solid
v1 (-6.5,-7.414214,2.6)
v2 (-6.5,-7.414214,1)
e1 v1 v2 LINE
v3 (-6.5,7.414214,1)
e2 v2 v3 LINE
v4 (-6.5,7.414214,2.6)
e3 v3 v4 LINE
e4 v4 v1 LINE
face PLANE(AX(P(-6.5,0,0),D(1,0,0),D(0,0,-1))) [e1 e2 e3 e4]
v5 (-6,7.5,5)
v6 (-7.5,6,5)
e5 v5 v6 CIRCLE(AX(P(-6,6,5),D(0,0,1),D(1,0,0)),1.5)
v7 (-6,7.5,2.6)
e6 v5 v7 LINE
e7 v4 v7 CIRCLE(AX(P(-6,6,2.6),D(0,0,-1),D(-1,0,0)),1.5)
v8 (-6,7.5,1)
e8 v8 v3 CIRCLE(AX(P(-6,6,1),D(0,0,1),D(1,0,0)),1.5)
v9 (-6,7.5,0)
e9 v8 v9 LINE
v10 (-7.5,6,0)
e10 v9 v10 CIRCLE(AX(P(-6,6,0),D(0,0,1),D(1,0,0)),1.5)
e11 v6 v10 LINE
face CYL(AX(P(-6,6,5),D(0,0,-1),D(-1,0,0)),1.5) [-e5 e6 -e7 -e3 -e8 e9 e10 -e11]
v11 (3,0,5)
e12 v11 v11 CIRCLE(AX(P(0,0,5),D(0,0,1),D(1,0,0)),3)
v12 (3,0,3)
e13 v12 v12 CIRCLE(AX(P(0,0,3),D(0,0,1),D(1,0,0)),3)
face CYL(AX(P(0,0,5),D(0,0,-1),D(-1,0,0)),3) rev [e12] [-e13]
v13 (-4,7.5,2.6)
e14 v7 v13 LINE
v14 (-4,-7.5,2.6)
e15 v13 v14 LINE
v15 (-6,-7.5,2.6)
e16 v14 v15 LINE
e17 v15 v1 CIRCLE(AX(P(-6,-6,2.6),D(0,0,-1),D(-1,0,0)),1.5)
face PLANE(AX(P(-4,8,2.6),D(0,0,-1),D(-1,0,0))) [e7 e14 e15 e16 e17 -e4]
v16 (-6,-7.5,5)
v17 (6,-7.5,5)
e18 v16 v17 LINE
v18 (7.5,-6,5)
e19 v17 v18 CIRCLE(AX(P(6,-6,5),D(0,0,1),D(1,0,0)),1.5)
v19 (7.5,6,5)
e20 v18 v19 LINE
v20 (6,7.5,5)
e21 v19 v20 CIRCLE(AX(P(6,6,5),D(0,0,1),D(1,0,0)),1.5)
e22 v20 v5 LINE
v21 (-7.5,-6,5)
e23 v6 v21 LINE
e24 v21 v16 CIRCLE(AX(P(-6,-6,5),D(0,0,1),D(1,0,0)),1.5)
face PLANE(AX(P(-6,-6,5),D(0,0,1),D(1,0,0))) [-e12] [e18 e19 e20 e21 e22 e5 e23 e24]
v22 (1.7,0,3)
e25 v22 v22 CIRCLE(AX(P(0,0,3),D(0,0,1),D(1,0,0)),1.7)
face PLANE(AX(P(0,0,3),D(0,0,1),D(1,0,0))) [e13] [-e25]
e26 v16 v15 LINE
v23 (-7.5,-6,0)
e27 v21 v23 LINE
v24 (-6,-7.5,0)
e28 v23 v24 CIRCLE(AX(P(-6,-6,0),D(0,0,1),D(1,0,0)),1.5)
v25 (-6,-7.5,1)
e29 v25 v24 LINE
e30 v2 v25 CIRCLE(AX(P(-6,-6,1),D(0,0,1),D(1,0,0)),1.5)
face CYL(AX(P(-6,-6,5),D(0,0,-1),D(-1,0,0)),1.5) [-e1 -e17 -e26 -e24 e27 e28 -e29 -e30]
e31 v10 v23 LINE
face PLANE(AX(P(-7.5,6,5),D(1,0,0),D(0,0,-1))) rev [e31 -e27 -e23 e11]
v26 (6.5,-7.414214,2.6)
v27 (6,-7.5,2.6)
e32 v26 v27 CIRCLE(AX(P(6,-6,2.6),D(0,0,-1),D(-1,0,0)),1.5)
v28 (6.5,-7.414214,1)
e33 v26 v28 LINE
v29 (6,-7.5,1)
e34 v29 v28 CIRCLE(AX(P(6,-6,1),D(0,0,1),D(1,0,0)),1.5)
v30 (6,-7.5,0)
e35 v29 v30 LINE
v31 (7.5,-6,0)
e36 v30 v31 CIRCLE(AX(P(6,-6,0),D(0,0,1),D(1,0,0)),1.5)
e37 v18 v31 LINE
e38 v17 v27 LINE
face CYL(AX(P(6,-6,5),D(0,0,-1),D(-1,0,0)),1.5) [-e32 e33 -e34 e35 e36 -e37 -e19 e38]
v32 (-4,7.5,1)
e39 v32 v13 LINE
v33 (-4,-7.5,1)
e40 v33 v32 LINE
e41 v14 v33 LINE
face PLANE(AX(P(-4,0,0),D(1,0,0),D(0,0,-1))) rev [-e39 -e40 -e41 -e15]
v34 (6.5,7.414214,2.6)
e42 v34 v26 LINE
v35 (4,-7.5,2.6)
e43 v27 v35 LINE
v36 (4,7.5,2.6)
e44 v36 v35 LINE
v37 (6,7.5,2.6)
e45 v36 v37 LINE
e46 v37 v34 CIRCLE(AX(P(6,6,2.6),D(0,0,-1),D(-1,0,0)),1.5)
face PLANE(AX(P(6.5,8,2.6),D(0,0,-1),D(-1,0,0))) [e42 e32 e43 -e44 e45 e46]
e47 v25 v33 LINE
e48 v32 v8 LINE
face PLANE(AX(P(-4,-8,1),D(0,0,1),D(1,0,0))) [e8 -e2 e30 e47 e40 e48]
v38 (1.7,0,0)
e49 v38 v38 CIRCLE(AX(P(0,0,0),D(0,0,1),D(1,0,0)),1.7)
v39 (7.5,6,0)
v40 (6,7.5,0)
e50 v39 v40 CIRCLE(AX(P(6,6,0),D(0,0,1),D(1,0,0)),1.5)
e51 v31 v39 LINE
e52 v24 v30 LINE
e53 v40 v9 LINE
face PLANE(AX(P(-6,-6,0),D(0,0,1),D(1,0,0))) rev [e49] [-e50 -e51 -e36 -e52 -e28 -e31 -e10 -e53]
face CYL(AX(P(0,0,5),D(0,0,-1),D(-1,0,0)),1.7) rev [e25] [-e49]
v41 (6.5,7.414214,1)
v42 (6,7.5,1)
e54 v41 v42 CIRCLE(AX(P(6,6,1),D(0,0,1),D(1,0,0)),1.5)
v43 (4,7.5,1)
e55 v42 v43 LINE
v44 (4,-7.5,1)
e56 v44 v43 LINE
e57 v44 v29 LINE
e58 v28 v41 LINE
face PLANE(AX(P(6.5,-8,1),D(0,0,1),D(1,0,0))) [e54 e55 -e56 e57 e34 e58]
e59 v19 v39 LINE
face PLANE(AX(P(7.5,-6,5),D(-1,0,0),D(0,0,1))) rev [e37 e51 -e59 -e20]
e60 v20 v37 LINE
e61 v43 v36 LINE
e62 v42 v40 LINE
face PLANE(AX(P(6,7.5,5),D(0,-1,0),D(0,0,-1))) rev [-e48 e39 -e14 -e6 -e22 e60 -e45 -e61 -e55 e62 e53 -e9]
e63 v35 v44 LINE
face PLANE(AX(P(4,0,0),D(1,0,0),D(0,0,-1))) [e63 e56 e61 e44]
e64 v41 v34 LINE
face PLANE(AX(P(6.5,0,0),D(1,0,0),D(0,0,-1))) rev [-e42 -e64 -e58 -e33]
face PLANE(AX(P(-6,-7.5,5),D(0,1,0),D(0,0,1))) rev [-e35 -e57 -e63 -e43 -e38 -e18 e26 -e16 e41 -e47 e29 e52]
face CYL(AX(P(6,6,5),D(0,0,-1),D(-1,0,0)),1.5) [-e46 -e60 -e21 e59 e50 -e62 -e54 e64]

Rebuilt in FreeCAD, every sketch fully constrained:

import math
import FreeCAD as App
import Part
import Sketcher
from FreeCAD import Vector
Q = App.Units.Quantity


def add_polygon(sketch, points):
    """Adds a closed chain of lines whose ends are joined by coincident constraints."""
    first, n = sketch.GeometryCount, len(points)
    for a, b in zip(points, points[1:] + points[:1]):
        sketch.addGeometry(Part.LineSegment(App.Vector(*a, 0), App.Vector(*b, 0)), False)
    for i in range(n):
        sketch.addConstraint(Sketcher.Constraint("Coincident", first + i, 2, first + (i + 1) % n, 1))

doc = App.newDocument("Part")
body = doc.addObject("PartDesign::Body", "Body")

sketch1 = body.newObject("Sketcher::SketchObject", "Sketch")
sketch1.AttachmentSupport = (doc.getObject("XY_Plane"), [""])
sketch1.MapMode = "FlatFace"
sketch1.addGeometry(Part.LineSegment(Vector(-6, -7.5, 0), Vector(6, -7.5, 0)), False)
sketch1.addGeometry(Part.ArcOfCircle(Part.Circle(Vector(6, -6, 0), Vector(0, 0, 1), 1.5), math.radians(-90), math.radians(0)), False)
sketch1.addGeometry(Part.LineSegment(Vector(7.5, -6, 0), Vector(7.5, 6, 0)), False)
sketch1.addGeometry(Part.ArcOfCircle(Part.Circle(Vector(6, 6, 0), Vector(0, 0, 1), 1.5), math.radians(0), math.radians(90)), False)
sketch1.addGeometry(Part.LineSegment(Vector(6, 7.5, 0), Vector(-6, 7.5, 0)), False)
sketch1.addGeometry(Part.ArcOfCircle(Part.Circle(Vector(-6, 6, 0), Vector(0, 0, 1), 1.5), math.radians(90), math.radians(180)), False)
sketch1.addGeometry(Part.LineSegment(Vector(-7.5, 6, 0), Vector(-7.5, -6, 0)), False)
sketch1.addGeometry(Part.ArcOfCircle(Part.Circle(Vector(-6, -6, 0), Vector(0, 0, 1), 1.5), math.radians(180), math.radians(270)), False)
sketch1.addConstraint(Sketcher.Constraint("Tangent", 0, 2, 1, 1))
sketch1.addConstraint(Sketcher.Constraint("Tangent", 1, 2, 2, 1))
sketch1.addConstraint(Sketcher.Constraint("Tangent", 2, 2, 3, 1))
sketch1.addConstraint(Sketcher.Constraint("Tangent", 3, 2, 4, 1))
sketch1.addConstraint(Sketcher.Constraint("Tangent", 4, 2, 5, 1))
sketch1.addConstraint(Sketcher.Constraint("Tangent", 5, 2, 6, 1))
sketch1.addConstraint(Sketcher.Constraint("Tangent", 6, 2, 7, 1))
sketch1.addConstraint(Sketcher.Constraint("Tangent", 7, 2, 0, 1))
sketch1.addConstraint(Sketcher.Constraint("Horizontal", 0))
sketch1.addConstraint(Sketcher.Constraint("Vertical", 2))
sketch1.addConstraint(Sketcher.Constraint("Horizontal", 4))
sketch1.addConstraint(Sketcher.Constraint("Vertical", 6))
sketch1.addConstraint(Sketcher.Constraint("Equal", 1, 3))
sketch1.addConstraint(Sketcher.Constraint("Equal", 3, 5))
sketch1.addConstraint(Sketcher.Constraint("Equal", 5, 7))
sketch1.addConstraint(Sketcher.Constraint("Symmetric", 1, 3, 5, 3, -1, 1))
sketch1.addConstraint(Sketcher.Constraint("Equal", 4, 2))
sketch1.addConstraint(Sketcher.Constraint("Radius", 1, Q("1.5 mm")))
sketch1.addConstraint(Sketcher.Constraint("DistanceX", 0, 1, 0, 2, Q("12 mm")))
pad1 = body.newObject("PartDesign::Pad", "Pad")
pad1.Profile = sketch1
pad1.Length = 5

sketch2 = body.newObject("Sketcher::SketchObject", "Sketch001")
sketch2.AttachmentSupport = (doc.getObject("XY_Plane"), [""])
sketch2.MapMode = "FlatFace"
sketch2.addGeometry(Part.Circle(Vector(0, 0, 0), Vector(0, 0, 1), 1.7), False)
sketch2.addConstraint(Sketcher.Constraint("Coincident", 0, 3, -1, 1))
sketch2.addConstraint(Sketcher.Constraint("Diameter", 0, Q("3.4 mm")))
pocket1 = body.newObject("PartDesign::Pocket", "Pocket")
pocket1.Profile = sketch2
pocket1.Length = 5
pocket1.Reversed = True

sketch3 = body.newObject("Sketcher::SketchObject", "Sketch002")
sketch3.AttachmentSupport = (doc.getObject("XY_Plane"), [""])
sketch3.MapMode = "FlatFace"
sketch3.AttachmentOffset = App.Placement(Vector(0, 0, 3), App.Rotation())
sketch3.addGeometry(Part.Circle(Vector(0, 0, 0), Vector(0, 0, 1), 3), False)
sketch3.addConstraint(Sketcher.Constraint("Coincident", 0, 3, -1, 1))
sketch3.addConstraint(Sketcher.Constraint("Diameter", 0, Q("6 mm")))
pocket2 = body.newObject("PartDesign::Pocket", "Pocket001")
pocket2.Profile = sketch3
pocket2.Length = 2
pocket2.Reversed = True

sketch4 = body.newObject("Sketcher::SketchObject", "Sketch003")
sketch4.AttachmentSupport = (doc.getObject("YZ_Plane"), [""])
sketch4.MapMode = "FlatFace"
sketch4.AttachmentOffset = App.Placement(Vector(0, 0, 4), App.Rotation())
add_polygon(sketch4, [(8, 2.6), (-8, 2.6), (-8, 1), (8, 1)])
sketch4.addConstraint(Sketcher.Constraint("Horizontal", 0))
sketch4.addConstraint(Sketcher.Constraint("Vertical", 1))
sketch4.addConstraint(Sketcher.Constraint("Horizontal", 2))
sketch4.addConstraint(Sketcher.Constraint("Vertical", 3))
sketch4.addConstraint(Sketcher.Constraint("DistanceX", 0, 2, 0, 1, Q("16 mm")))
sketch4.addConstraint(Sketcher.Constraint("DistanceY", 1, 2, 1, 1, Q("1.6 mm")))
sketch4.addConstraint(Sketcher.Constraint("DistanceX", 0, 2, -1, 1, Q("8 mm")))
sketch4.addConstraint(Sketcher.Constraint("DistanceY", -1, 1, 1, 2, Q("1 mm")))
pocket3 = body.newObject("PartDesign::Pocket", "Pocket002")
pocket3.Profile = sketch4
pocket3.Length = 2.5
pocket3.Reversed = True

sketch5 = body.newObject("Sketcher::SketchObject", "Sketch004")
sketch5.AttachmentSupport = (doc.getObject("YZ_Plane"), [""])
sketch5.MapMode = "FlatFace"
sketch5.AttachmentOffset = App.Placement(Vector(0, 0, -6.5), App.Rotation())
add_polygon(sketch5, [(8, 2.6), (-8, 2.6), (-8, 1), (8, 1)])
sketch5.addConstraint(Sketcher.Constraint("Horizontal", 0))
sketch5.addConstraint(Sketcher.Constraint("Vertical", 1))
sketch5.addConstraint(Sketcher.Constraint("Horizontal", 2))
sketch5.addConstraint(Sketcher.Constraint("Vertical", 3))
sketch5.addConstraint(Sketcher.Constraint("DistanceX", 0, 2, 0, 1, Q("16 mm")))
sketch5.addConstraint(Sketcher.Constraint("DistanceY", 1, 2, 1, 1, Q("1.6 mm")))
sketch5.addConstraint(Sketcher.Constraint("DistanceX", 0, 2, -1, 1, Q("8 mm")))
sketch5.addConstraint(Sketcher.Constraint("DistanceY", -1, 1, 1, 2, Q("1 mm")))
pocket4 = body.newObject("PartDesign::Pocket", "Pocket003")
pocket4.Profile = sketch5
pocket4.Length = 2.5
pocket4.Reversed = True

doc.recompute()
